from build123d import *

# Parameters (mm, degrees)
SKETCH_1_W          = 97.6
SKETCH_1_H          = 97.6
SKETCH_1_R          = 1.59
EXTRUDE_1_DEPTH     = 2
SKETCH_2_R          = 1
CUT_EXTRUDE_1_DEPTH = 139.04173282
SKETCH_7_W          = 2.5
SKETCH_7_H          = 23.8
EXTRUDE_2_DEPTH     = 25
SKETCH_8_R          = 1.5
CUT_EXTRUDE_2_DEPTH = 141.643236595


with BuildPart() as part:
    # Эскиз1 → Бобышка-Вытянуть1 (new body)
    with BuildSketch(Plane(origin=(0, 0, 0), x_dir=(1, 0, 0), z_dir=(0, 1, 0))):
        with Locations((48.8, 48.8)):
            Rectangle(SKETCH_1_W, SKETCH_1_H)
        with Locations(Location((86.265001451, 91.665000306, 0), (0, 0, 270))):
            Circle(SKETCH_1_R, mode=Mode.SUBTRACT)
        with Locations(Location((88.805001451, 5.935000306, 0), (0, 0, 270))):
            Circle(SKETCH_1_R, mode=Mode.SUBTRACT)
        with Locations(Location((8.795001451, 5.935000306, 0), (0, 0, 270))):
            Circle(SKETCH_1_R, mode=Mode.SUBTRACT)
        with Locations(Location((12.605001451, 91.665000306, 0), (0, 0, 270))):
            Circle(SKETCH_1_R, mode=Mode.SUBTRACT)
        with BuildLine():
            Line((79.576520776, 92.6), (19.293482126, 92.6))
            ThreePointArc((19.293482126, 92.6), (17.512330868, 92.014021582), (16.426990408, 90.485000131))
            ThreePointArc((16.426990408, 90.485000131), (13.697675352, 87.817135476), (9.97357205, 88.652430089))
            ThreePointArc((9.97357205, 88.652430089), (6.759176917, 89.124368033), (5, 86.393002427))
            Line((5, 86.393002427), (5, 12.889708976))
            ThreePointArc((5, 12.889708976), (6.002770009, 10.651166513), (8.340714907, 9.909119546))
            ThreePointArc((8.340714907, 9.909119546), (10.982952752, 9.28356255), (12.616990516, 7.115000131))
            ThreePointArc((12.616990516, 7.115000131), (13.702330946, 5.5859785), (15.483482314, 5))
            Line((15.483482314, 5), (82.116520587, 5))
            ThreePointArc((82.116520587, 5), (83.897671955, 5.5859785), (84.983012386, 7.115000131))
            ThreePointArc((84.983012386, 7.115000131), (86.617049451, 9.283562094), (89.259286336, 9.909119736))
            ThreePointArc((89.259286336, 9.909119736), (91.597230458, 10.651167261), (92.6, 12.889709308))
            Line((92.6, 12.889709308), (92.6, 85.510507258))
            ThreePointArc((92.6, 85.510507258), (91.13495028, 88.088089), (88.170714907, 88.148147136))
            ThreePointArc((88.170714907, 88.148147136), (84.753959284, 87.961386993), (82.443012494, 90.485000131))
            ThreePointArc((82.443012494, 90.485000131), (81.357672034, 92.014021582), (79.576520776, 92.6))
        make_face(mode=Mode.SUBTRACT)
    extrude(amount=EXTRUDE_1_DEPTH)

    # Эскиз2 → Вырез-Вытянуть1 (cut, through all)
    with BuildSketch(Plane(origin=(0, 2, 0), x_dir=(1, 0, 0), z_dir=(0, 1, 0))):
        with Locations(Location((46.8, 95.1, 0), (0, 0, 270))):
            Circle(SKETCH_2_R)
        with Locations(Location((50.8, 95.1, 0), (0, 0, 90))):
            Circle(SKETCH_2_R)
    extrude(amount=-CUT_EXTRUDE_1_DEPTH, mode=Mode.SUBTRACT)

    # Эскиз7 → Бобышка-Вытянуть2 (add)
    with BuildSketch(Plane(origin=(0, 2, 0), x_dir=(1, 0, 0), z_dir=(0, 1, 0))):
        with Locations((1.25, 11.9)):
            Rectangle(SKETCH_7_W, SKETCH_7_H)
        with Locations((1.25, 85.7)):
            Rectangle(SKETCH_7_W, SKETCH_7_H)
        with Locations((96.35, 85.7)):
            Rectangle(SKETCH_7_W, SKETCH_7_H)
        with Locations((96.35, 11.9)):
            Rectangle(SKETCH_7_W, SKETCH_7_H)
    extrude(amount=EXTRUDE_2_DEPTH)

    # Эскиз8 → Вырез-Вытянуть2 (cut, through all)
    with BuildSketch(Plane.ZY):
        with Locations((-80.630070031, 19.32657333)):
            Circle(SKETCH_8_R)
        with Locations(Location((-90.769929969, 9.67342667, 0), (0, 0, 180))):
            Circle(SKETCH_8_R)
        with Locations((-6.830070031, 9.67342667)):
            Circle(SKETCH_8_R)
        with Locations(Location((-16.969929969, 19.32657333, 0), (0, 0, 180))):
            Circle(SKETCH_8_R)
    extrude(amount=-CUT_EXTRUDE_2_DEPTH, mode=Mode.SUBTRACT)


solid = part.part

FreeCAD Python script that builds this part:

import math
import FreeCAD as App
import Part
import Sketcher

V = App.Vector


def add_polygon(sketch, points):
    """Adds a closed chain of lines whose ends are joined by coincident constraints."""
    first, n = sketch.GeometryCount, len(points)
    for a, b in zip(points, points[1:] + points[:1]):
        sketch.addGeometry(Part.LineSegment(App.Vector(*a, 0), App.Vector(*b, 0)), False)
    for i in range(n):
        sketch.addConstraint(Sketcher.Constraint("Coincident", first + i, 2, first + (i + 1) % n, 1))

doc = App.newDocument("Part")
body = doc.addObject("PartDesign::Body", "Body")

sketch1 = doc.addObject("Sketcher::SketchObject", "Sketch")
body.addObject(sketch1)
sketch1.AttachmentSupport = (doc.XZ_Plane, [""])
sketch1.MapMode = "FlatFace"
add_polygon(sketch1, [(0, -97.6), (0, 0), (97.6, 0), (97.6, -97.6)])
sketch1.addGeometry(Part.Circle(V(8.8, -5.9, 0), V(0, 0, 1), 1.6), False)
sketch1.addGeometry(Part.Circle(V(88.8, -5.9, 0), V(0, 0, 1), 1.6), False)
sketch1.addGeometry(Part.LineSegment(V(19.3, -92.6, 0), V(79.6, -92.6, 0)), False)
sketch1.addGeometry(Part.ArcOfCircle(Part.Circle(V(79.6, -89.6, 0), V(0, 0, 1), 3), math.radians(-90), math.radians(-17)), False)
sketch1.addGeometry(Part.ArcOfCircle(Part.Circle(V(86.3, -91.7, 0), V(0, 0, 1), 4), math.radians(62), math.radians(163)), False)
sketch1.addGeometry(Part.ArcOfCircle(Part.Circle(V(89.6, -85.5, 0), V(0, 0, 1), 3), math.radians(-118), math.radians(0)), False)
sketch1.addGeometry(Part.LineSegment(V(92.6, -85.5, 0), V(92.6, -12.9, 0)), False)
sketch1.addGeometry(Part.ArcOfCircle(Part.Circle(V(89.6, -12.9, 0), V(0, 0, 1), 3), math.radians(0), math.radians(97)), False)
sketch1.addGeometry(Part.ArcOfCircle(Part.Circle(V(88.8, -5.9, 0), V(0, 0, 1), 4), math.radians(-163), math.radians(-83)), False)
sketch1.addGeometry(Part.ArcOfCircle(Part.Circle(V(82.1, -8, 0), V(0, 0, 1), 3), math.radians(17), math.radians(90)), False)
sketch1.addGeometry(Part.LineSegment(V(82.1, -5, 0), V(15.5, -5, 0)), False)
sketch1.addGeometry(Part.ArcOfCircle(Part.Circle(V(15.5, -8, 0), V(0, 0, 1), 3), math.radians(90), math.radians(163)), False)
sketch1.addGeometry(Part.ArcOfCircle(Part.Circle(V(8.8, -5.9, 0), V(0, 0, 1), 4), math.radians(-97), math.radians(-17)), False)
sketch1.addGeometry(Part.ArcOfCircle(Part.Circle(V(8, -12.9, 0), V(0, 0, 1), 3), math.radians(83), math.radians(180)), False)
sketch1.addGeometry(Part.LineSegment(V(5, -12.9, 0), V(5, -86.4, 0)), False)
sketch1.addGeometry(Part.ArcOfCircle(Part.Circle(V(8, -86.4, 0), V(0, 0, 1), 3), math.radians(180), math.radians(311)), False)
sketch1.addGeometry(Part.ArcOfCircle(Part.Circle(V(12.6, -91.7, 0), V(0, 0, 1), 4), math.radians(17), math.radians(131)), False)
sketch1.addGeometry(Part.ArcOfCircle(Part.Circle(V(19.3, -89.6, 0), V(0, 0, 1), 3), math.radians(-163), math.radians(-90)), False)
sketch1.addGeometry(Part.Circle(V(12.6, -91.7, 0), V(0, 0, 1), 1.6), False)
sketch1.addGeometry(Part.Circle(V(86.3, -91.7, 0), V(0, 0, 1), 1.6), False)
sketch1.addConstraint([
    Sketcher.Constraint("Tangent", 6, 2, 7, 1),
    Sketcher.Constraint("Tangent", 7, 2, 8, 2),
    Sketcher.Constraint("Tangent", 8, 1, 9, 1),
    Sketcher.Constraint("Tangent", 9, 2, 10, 1),
    Sketcher.Constraint("Tangent", 10, 2, 11, 1),
    Sketcher.Constraint("Tangent", 11, 2, 12, 2),
    Sketcher.Constraint("Tangent", 12, 1, 13, 1),
    Sketcher.Constraint("Tangent", 13, 2, 14, 1),
    Sketcher.Constraint("Tangent", 14, 2, 15, 1),
    Sketcher.Constraint("Tangent", 15, 2, 16, 2),
    Sketcher.Constraint("Tangent", 16, 1, 17, 1),
    Sketcher.Constraint("Tangent", 17, 2, 18, 1),
    Sketcher.Constraint("Tangent", 18, 2, 19, 1),
    Sketcher.Constraint("Tangent", 19, 2, 20, 2),
    Sketcher.Constraint("Tangent", 20, 1, 21, 1),
    Sketcher.Constraint("Tangent", 21, 2, 6, 1),
    Sketcher.Constraint("Vertical", 0),
    Sketcher.Constraint("Horizontal", 1),
    Sketcher.Constraint("Vertical", 2),
    Sketcher.Constraint("Horizontal", 3),
    Sketcher.Constraint("Horizontal", 6),
    Sketcher.Constraint("Vertical", 10),
    Sketcher.Constraint("Horizontal", 14),
    Sketcher.Constraint("Vertical", 18),
    Sketcher.Constraint("Coincident", 0, 2, -1, 1),
    Sketcher.Constraint("Coincident", 12, 3, 5, 3),
    Sketcher.Constraint("Coincident", 16, 3, 4, 3),
    Sketcher.Constraint("Coincident", 22, 3, 20, 3),
    Sketcher.Constraint("Coincident", 23, 3, 8, 3),
    Sketcher.Constraint("Equal", 4, 5),
    Sketcher.Constraint("Equal", 7, 9),
    Sketcher.Constraint("Equal", 9, 11),
    Sketcher.Constraint("Equal", 8, 12),
    Sketcher.Constraint("Equal", 11, 13),
    Sketcher.Constraint("Equal", 13, 15),
    Sketcher.Constraint("Equal", 12, 16),
    Sketcher.Constraint("Equal", 15, 17),
    Sketcher.Constraint("Equal", 17, 19),
    Sketcher.Constraint("Equal", 16, 20),
    Sketcher.Constraint("Equal", 19, 21),
    Sketcher.Constraint("Equal", 5, 22),
    Sketcher.Constraint("Equal", 22, 23),
    Sketcher.Constraint("Horizontal", 4, 3, 5, 3),
    Sketcher.Constraint("Horizontal", 11, 3, 17, 3),
    Sketcher.Constraint("Horizontal", 8, 3, 20, 3),
    Sketcher.Constraint("Equal", 3, 0),
    Sketcher.Constraint("Radius", 7, 3.0),
    Sketcher.Constraint("Radius", 8, 4.0),
    Sketcher.Constraint("Diameter", 4, 3.18),
    Sketcher.Constraint("DistanceX", 1, 1, 1, 2, 97.6),
    Sketcher.Constraint("DistanceY", 13, 3, -1, 1, 8.0),
    Sketcher.Constraint("DistanceX", -1, 1, 17, 3, 8.0),
    Sketcher.Constraint("DistanceX", 11, 3, 1, 2, 8.0),
    Sketcher.Constraint("DistanceY", 2, 2, 7, 3, 8.0),
    Sketcher.Constraint("DistanceX", 4, 3, 5, 3, 80.01),
    Sketcher.Constraint("DistanceX", 8, 3, 5, 3, 2.54),
    Sketcher.Constraint("DistanceY", 8, 3, 5, 3, 85.73),
    Sketcher.Constraint("DistanceX", 20, 3, 8, 3, 73.66),
    Sketcher.Constraint("DistanceY", 8, 3, 7, 2, 1.18),
])
pad1 = doc.addObject("PartDesign::Pad", "Pad")
body.addObject(pad1)
pad1.Profile = sketch1
pad1.Length = 2
pad1.Reversed = True

sketch2 = doc.addObject("Sketcher::SketchObject", "Sketch001")
body.addObject(sketch2)
sketch2.AttachmentSupport = (doc.XZ_Plane, [""])
sketch2.MapMode = "FlatFace"
sketch2.AttachmentOffset = App.Placement(V(0, 0, -2), App.Rotation())
sketch2.addGeometry([
    Part.Circle(V(46.8, -95.1, 0), V(0, 0, 1), 1),
    Part.Circle(V(50.8, -95.1, 0), V(0, 0, 1), 1),
], False)
sketch2.addConstraint([
    Sketcher.Constraint("Equal", 0, 1),
    Sketcher.Constraint("Horizontal", 0, 3, 1, 3),
    Sketcher.Constraint("Diameter", 0, 2.0),
    Sketcher.Constraint("DistanceX", 0, 3, 1, 3, 4.0),
    Sketcher.Constraint("DistanceX", -1, 1, 0, 3, 46.8),
    Sketcher.Constraint("DistanceY", 0, 3, -1, 1, 95.1),
])
pocket1 = doc.addObject("PartDesign::Pocket", "Pocket")
body.addObject(pocket1)
pocket1.Profile = sketch2
pocket1.Type = "ThroughAll"
pocket1.Reversed = True

sketch3 = doc.addObject("Sketcher::SketchObject", "Sketch002")
body.addObject(sketch3)
sketch3.AttachmentSupport = (doc.XZ_Plane, [""])
sketch3.MapMode = "FlatFace"
sketch3.AttachmentOffset = App.Placement(V(0, 0, -2), App.Rotation())
add_polygon(sketch3, [(0, -23.8), (0, 0), (2.5, 0), (2.5, -23.8)])
add_polygon(sketch3, [(0, -97.6), (0, -73.8), (2.5, -73.8), (2.5, -97.6)])
add_polygon(sketch3, [(95.1, -97.6), (95.1, -73.8), (97.6, -73.8), (97.6, -97.6)])
add_polygon(sketch3, [(95.1, -23.8), (95.1, 0), (97.6, 0), (97.6, -23.8)])
sketch3.addConstraint([
    Sketcher.Constraint("Vertical", 0),
    Sketcher.Constraint("Horizontal", 1),
    Sketcher.Constraint("Vertical", 2),
    Sketcher.Constraint("Horizontal", 3),
    Sketcher.Constraint("Vertical", 4),
    Sketcher.Constraint("Horizontal", 5),
    Sketcher.Constraint("Vertical", 6),
    Sketcher.Constraint("Horizontal", 7),
    Sketcher.Constraint("Vertical", 8),
    Sketcher.Constraint("Horizontal", 9),
    Sketcher.Constraint("Vertical", 10),
    Sketcher.Constraint("Horizontal", 11),
    Sketcher.Constraint("Vertical", 12),
    Sketcher.Constraint("Horizontal", 13),
    Sketcher.Constraint("Vertical", 14),
    Sketcher.Constraint("Horizontal", 15),
    Sketcher.Constraint("Coincident", 0, 2, -1, 1),
    Sketcher.Constraint("PointOnObject", 4, 2, -2),
    Sketcher.Constraint("PointOnObject", 12, 2, -1),
    Sketcher.Constraint("Horizontal", 5, 2, 8, 2),
    Sketcher.Constraint("Horizontal", 7, 2, 10, 2),
    Sketcher.Constraint("Horizontal", 3, 2, 14, 2),
    Sketcher.Constraint("Vertical", 2, 2, 5, 2),
    Sketcher.Constraint("Vertical", 11, 2, 12, 2),
    Sketcher.Constraint("Vertical", 10, 2, 13, 2),
    Sketcher.Constraint("Equal", 7, 9),
    Sketcher.Constraint("Equal", 2, 4),
    Sketcher.Constraint("DistanceX", 1, 1, 1, 2, 2.5),
    Sketcher.Constraint("DistanceY", 0, 1, 0, 2, 23.8),
    Sketcher.Constraint("DistanceY", 4, 2, 3, 2, 50.0),
    Sketcher.Constraint("DistanceX", -1, 1, 8, 2, 95.1),
])
pad2 = doc.addObject("PartDesign::Pad", "Pad001")
body.addObject(pad2)
pad2.Profile = sketch3
pad2.Length = 25
pad2.Reversed = True

sketch4 = doc.addObject("Sketcher::SketchObject", "Sketch003")
body.addObject(sketch4)
sketch4.AttachmentSupport = (doc.YZ_Plane, [""])
sketch4.MapMode = "FlatFace"
sketch4.addGeometry([
    Part.Circle(V(19.3, -80.6, 0), V(0, 0, 1), 1.5),
    Part.Circle(V(9.7, -90.8, 0), V(0, 0, 1), 1.5),
    Part.Circle(V(9.7, -6.8, 0), V(0, 0, 1), 1.5),
    Part.Circle(V(19.3, -17, 0), V(0, 0, 1), 1.5),
], False)
sketch4.addConstraint([
    Sketcher.Constraint("Equal", 0, 1),
    Sketcher.Constraint("Equal", 1, 2),
    Sketcher.Constraint("Equal", 2, 3),
    Sketcher.Constraint("Vertical", 1, 3, 2, 3),
    Sketcher.Constraint("Vertical", 0, 3, 3, 3),
    Sketcher.Constraint("Diameter", 0, 3.0),
    Sketcher.Constraint("DistanceY", 0, 3, 2, 3, 73.8),
    Sketcher.Constraint("DistanceY", 1, 3, 3, 3, 73.8),
    Sketcher.Constraint("DistanceY", 0, 3, -1, 1, 80.63007),
    Sketcher.Constraint("DistanceY", 1, 3, -1, 1, 90.76993),
    Sketcher.Constraint("DistanceX", -1, 1, 0, 3, 19.326573),
    Sketcher.Constraint("DistanceX", -1, 1, 1, 3, 9.673427),
])
pocket2 = doc.addObject("PartDesign::Pocket", "Pocket001")
body.addObject(pocket2)
pocket2.Profile = sketch4
pocket2.Type = "ThroughAll"
pocket2.Reversed = True

doc.recompute()
